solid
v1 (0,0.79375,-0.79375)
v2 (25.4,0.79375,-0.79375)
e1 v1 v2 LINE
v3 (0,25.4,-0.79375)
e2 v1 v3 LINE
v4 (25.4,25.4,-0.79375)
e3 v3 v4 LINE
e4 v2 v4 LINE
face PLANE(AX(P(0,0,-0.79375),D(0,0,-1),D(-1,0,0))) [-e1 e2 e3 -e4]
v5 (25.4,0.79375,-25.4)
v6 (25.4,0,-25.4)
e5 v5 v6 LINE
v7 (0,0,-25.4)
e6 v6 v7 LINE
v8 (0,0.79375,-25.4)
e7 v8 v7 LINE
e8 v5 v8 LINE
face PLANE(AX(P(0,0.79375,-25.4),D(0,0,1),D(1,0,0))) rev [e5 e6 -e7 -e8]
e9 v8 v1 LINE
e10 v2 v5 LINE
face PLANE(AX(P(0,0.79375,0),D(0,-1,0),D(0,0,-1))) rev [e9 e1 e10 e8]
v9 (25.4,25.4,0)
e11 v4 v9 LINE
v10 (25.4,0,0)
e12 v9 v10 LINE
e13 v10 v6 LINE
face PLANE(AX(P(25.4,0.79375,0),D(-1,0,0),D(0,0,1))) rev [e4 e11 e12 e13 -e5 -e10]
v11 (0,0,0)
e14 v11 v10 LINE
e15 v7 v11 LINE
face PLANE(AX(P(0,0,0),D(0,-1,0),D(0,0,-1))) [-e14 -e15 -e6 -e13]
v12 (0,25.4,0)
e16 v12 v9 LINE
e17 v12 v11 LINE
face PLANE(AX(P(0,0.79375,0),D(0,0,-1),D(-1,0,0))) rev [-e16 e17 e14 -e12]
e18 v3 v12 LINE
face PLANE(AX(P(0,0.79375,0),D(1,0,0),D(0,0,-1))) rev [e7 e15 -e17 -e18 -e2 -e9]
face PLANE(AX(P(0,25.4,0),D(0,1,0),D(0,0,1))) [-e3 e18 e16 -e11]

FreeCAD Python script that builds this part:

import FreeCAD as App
import Part
import Sketcher
from FreeCAD import Vector
Q = App.Units.Quantity


def add_polygon(sketch, points):
    """Adds a closed chain of lines whose ends are joined by coincident constraints."""
    first, n = sketch.GeometryCount, len(points)
    for a, b in zip(points, points[1:] + points[:1]):
        sketch.addGeometry(Part.LineSegment(App.Vector(*a, 0), App.Vector(*b, 0)), False)
    for i in range(n):
        sketch.addConstraint(Sketcher.Constraint("Coincident", first + i, 2, first + (i + 1) % n, 1))

doc = App.newDocument("Part")
body = doc.addObject("PartDesign::Body", "Body")

# Sketch on XZ plane
sketch1 = doc.addObject("Sketcher::SketchObject", "Sketch")
body.addObject(sketch1)
sketch1.AttachmentSupport = (doc.XZ_Plane, [""])
sketch1.MapMode = "FlatFace"
add_polygon(sketch1, [(0, -25), (0, 0), (25, 0), (25, -25)])  # lines 0-3
sketch1.addConstraint([
    Sketcher.Constraint("Vertical", 0),
    Sketcher.Constraint("Horizontal", 1),
    Sketcher.Constraint("Vertical", 2),
    Sketcher.Constraint("Horizontal", 3),
    Sketcher.Constraint("Coincident", 0, 2, -1, 1),
    Sketcher.Constraint("Equal", 3, 0),
    Sketcher.Constraint("DistanceX", 1, 1, 1, 2, Q("1 in")),
])
pad1 = doc.addObject("PartDesign::Pad", "Pad")
body.addObject(pad1)
pad1.Profile = sketch1
pad1.Length = Q("0.03125 in")
pad1.Reversed = True

# Sketch on YZ plane
sketch2 = doc.addObject("Sketcher::SketchObject", "Sketch001")
body.addObject(sketch2)
sketch2.AttachmentSupport = (doc.YZ_Plane, [""])
sketch2.MapMode = "FlatFace"
sketch2.AttachmentOffset = App.Placement(Vector(0, 0, 1 * 25.4), App.Rotation())
add_polygon(sketch2, [(25.4, 0), (0, 0), (0, -0.8), (25.4, -0.8)])  # lines 0-3
sketch2.addConstraint([
    Sketcher.Constraint("Horizontal", 0),
    Sketcher.Constraint("Vertical", 1),
    Sketcher.Constraint("Horizontal", 2),
    Sketcher.Constraint("Vertical", 3),
    Sketcher.Constraint("Coincident", 0, 2, -1, 1),
    Sketcher.Constraint("DistanceX", 0, 2, 0, 1, Q("1 in")),
    Sketcher.Constraint("DistanceY", 1, 2, 1, 1, Q("0.03125 in")),
])
pad2 = doc.addObject("PartDesign::Pad", "Pad001")
body.addObject(pad2)
pad2.Profile = sketch2
pad2.Length = Q("1 in")
pad2.Reversed = True

doc.recompute()
